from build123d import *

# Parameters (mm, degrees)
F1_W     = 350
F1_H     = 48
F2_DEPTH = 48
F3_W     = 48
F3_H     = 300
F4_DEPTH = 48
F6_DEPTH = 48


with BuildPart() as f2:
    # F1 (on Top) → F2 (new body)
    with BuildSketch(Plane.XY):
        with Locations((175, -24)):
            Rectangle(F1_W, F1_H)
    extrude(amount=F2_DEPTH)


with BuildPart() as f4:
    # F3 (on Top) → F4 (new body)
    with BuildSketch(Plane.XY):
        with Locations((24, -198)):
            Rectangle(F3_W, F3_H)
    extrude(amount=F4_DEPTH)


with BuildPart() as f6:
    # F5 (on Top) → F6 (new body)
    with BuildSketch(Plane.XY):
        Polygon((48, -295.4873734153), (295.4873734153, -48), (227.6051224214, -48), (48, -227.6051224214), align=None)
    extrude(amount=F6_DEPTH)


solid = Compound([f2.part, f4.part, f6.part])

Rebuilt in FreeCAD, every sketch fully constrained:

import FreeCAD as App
import Part
import Sketcher
Q = App.Units.Quantity


def add_polygon(sketch, points):
    """Adds a closed chain of lines whose ends are joined by coincident constraints."""
    first, n = sketch.GeometryCount, len(points)
    for a, b in zip(points, points[1:] + points[:1]):
        sketch.addGeometry(Part.LineSegment(App.Vector(*a, 0), App.Vector(*b, 0)), False)
    for i in range(n):
        sketch.addConstraint(Sketcher.Constraint("Coincident", first + i, 2, first + (i + 1) % n, 1))

doc = App.newDocument("Part")
body = doc.addObject("PartDesign::Body", "Body")

# Sketch on XY plane
sketch1 = body.newObject("Sketcher::SketchObject", "Sketch")
sketch1.AttachmentSupport = (doc.getObject("XY_Plane"), [""])
sketch1.MapMode = "FlatFace"
add_polygon(sketch1, [(0, 0), (0, -48), (350, -48), (350, 0)])  # lines 0-3
sketch1.addConstraint(Sketcher.Constraint("Vertical", 0))
sketch1.addConstraint(Sketcher.Constraint("Horizontal", 1))
sketch1.addConstraint(Sketcher.Constraint("Vertical", 2))
sketch1.addConstraint(Sketcher.Constraint("Horizontal", 3))
sketch1.addConstraint(Sketcher.Constraint("Coincident", 3, 2, -1, 1))
sketch1.addConstraint(Sketcher.Constraint("DistanceX", 1, 1, 1, 2, Q("350 mm")))
sketch1.addConstraint(Sketcher.Constraint("DistanceY", 0, 2, 0, 1, Q("48 mm")))
pad1 = body.newObject("PartDesign::Pad", "Pad")
pad1.Profile = sketch1
pad1.Length = 48
body2 = doc.addObject("PartDesign::Body", "Body001")

# Sketch on XY plane
sketch2 = body2.newObject("Sketcher::SketchObject", "Sketch001")
sketch2.AttachmentSupport = (doc.getObject("XY_Plane001"), [""])
sketch2.MapMode = "FlatFace"
add_polygon(sketch2, [(0, -48), (0, -348), (48, -348), (48, -48)])  # lines 0-3
sketch2.addConstraint(Sketcher.Constraint("Vertical", 0))
sketch2.addConstraint(Sketcher.Constraint("Horizontal", 1))
sketch2.addConstraint(Sketcher.Constraint("Vertical", 2))
sketch2.addConstraint(Sketcher.Constraint("Horizontal", 3))
sketch2.addConstraint(Sketcher.Constraint("PointOnObject", 0, 2, -2))
sketch2.addConstraint(Sketcher.Constraint("DistanceX", 1, 1, 1, 2, Q("48 mm")))
sketch2.addConstraint(Sketcher.Constraint("DistanceY", 0, 2, 0, 1, Q("300 mm")))
sketch2.addConstraint(Sketcher.Constraint("DistanceY", 0, 2, -1, 1, Q("348 mm")))
pad2 = body2.newObject("PartDesign::Pad", "Pad001")
pad2.Profile = sketch2
pad2.Length = 48
body3 = doc.addObject("PartDesign::Body", "Body002")

# Sketch on XY plane
sketch3 = body3.newObject("Sketcher::SketchObject", "Sketch002")
sketch3.AttachmentSupport = (doc.getObject("XY_Plane002"), [""])
sketch3.MapMode = "FlatFace"
add_polygon(sketch3, [(48, -295.487373), (295.487373, -48), (227.605122, -48), (48, -227.605122)])  # lines 0-3
sketch3.addConstraint(Sketcher.Constraint("Horizontal", 1))
sketch3.addConstraint(Sketcher.Constraint("Vertical", 3))
sketch3.addConstraint(Sketcher.Constraint("Parallel", 0, 2))
sketch3.addConstraint(Sketcher.Constraint("Equal", 1, 3))
sketch3.addConstraint(Sketcher.Constraint("Distance", 0, Q("350 mm")))
sketch3.addConstraint(Sketcher.Constraint("Distance", 2, Q("254 mm")))
sketch3.addConstraint(Sketcher.Constraint("DistanceY", 0, 2, -1, 1, Q("48 mm")))
sketch3.addConstraint(Sketcher.Constraint("DistanceX", -1, 1, 2, 2, Q("48 mm")))
pad3 = body3.newObject("PartDesign::Pad", "Pad002")
pad3.Profile = sketch3
pad3.Length = 48

doc.recompute()
